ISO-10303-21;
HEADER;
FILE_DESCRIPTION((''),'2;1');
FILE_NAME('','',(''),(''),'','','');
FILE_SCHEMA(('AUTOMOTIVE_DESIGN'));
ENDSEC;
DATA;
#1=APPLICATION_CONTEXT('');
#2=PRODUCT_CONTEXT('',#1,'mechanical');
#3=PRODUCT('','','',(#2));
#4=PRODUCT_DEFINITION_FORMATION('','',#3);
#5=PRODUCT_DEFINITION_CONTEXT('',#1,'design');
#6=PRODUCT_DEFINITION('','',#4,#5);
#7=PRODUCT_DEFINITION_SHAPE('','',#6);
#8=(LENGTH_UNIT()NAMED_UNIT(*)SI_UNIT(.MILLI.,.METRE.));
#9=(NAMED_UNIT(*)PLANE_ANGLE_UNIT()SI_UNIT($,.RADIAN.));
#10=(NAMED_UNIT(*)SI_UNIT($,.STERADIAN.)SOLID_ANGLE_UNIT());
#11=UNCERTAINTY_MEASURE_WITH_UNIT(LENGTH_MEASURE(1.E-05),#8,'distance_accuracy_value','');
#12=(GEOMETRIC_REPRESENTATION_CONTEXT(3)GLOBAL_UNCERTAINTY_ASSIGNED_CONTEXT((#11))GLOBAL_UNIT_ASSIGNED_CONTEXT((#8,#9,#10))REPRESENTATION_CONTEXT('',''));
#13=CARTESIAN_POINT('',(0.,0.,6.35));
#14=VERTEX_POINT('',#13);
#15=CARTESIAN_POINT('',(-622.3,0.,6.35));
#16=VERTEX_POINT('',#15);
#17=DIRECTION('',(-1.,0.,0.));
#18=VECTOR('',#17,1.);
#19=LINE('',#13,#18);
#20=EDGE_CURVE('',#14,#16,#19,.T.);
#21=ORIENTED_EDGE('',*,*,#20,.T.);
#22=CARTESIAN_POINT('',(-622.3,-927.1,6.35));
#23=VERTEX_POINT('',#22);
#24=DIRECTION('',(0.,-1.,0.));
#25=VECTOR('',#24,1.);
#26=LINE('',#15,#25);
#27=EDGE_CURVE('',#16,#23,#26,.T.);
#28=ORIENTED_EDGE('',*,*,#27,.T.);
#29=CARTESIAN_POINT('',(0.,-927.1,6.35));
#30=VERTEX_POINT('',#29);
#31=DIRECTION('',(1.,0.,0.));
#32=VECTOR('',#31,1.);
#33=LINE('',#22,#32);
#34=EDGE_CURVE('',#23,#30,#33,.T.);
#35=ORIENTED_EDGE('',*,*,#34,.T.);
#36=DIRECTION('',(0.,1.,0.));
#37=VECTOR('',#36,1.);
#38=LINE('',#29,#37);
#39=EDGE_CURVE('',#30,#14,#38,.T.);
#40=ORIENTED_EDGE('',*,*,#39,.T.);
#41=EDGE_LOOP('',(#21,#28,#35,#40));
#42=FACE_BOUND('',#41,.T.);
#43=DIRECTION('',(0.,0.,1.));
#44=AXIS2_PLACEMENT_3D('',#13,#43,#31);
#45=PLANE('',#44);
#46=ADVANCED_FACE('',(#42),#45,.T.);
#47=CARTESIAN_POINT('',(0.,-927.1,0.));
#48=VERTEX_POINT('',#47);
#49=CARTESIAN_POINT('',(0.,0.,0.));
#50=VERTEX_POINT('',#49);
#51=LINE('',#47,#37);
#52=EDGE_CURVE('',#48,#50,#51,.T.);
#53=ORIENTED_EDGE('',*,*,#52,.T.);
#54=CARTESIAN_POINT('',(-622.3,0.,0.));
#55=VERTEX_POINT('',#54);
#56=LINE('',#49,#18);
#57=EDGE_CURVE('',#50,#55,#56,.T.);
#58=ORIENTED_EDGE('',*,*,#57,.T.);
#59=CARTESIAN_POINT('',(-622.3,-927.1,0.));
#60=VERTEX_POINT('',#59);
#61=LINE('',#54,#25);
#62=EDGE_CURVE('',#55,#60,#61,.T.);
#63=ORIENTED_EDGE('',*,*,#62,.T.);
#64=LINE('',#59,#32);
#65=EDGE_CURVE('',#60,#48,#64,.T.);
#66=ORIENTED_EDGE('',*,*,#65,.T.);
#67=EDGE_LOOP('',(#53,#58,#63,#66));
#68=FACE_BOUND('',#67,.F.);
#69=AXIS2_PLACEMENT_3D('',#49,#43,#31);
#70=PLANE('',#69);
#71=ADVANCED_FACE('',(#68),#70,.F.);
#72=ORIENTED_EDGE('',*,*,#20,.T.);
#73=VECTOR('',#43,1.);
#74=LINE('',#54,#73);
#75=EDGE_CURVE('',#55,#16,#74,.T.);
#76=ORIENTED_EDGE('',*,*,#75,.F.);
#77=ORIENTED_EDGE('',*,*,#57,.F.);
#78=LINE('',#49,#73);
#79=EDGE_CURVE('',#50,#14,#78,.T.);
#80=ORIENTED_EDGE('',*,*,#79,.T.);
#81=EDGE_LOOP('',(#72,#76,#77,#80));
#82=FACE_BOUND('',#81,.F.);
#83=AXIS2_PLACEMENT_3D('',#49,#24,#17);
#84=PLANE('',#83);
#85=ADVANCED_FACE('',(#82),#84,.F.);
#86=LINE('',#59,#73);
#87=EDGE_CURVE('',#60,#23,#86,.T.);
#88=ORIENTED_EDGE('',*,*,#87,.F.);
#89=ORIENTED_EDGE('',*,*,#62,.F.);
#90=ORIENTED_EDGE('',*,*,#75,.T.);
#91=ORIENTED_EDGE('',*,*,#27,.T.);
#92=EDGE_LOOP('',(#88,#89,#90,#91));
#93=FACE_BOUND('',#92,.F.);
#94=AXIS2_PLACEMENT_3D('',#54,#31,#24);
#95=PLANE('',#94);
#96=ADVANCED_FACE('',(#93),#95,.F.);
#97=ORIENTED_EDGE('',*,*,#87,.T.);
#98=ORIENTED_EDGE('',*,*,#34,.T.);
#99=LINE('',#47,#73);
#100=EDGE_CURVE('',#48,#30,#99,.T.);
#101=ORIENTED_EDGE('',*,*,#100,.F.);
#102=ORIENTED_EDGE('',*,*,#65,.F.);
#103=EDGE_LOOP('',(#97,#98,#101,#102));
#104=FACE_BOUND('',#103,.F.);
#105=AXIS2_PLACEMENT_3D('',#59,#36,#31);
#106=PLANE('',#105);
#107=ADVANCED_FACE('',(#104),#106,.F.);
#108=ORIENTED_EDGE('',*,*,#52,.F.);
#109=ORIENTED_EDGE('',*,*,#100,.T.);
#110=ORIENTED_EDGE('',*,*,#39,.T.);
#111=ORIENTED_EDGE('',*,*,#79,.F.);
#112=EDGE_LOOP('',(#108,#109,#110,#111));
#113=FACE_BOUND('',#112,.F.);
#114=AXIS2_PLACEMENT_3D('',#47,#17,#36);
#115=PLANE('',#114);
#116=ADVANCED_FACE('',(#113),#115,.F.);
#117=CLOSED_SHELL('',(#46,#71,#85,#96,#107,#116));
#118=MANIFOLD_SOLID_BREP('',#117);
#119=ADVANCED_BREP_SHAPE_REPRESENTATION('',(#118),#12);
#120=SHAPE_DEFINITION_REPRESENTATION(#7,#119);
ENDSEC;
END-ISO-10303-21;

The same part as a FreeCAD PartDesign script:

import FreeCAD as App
import Part
import Sketcher
from FreeCAD import Vector
Q = App.Units.Quantity


def add_polygon(sketch, points):
    """Adds a closed chain of lines whose ends are joined by coincident constraints."""
    first, n = sketch.GeometryCount, len(points)
    for a, b in zip(points, points[1:] + points[:1]):
        sketch.addGeometry(Part.LineSegment(App.Vector(*a, 0), App.Vector(*b, 0)), False)
    for i in range(n):
        sketch.addConstraint(Sketcher.Constraint("Coincident", first + i, 2, first + (i + 1) % n, 1))

doc = App.newDocument("Part")
body = doc.addObject("PartDesign::Body", "Body")

# Sketch on XY plane
sketch1 = doc.addObject("Sketcher::SketchObject", "Sketch")
body.addObject(sketch1)
sketch1.AttachmentSupport = (doc.XY_Plane, [""])
sketch1.MapMode = "FlatFace"
add_polygon(sketch1, [(0, -927.1), (0, 0), (-622.3, 0), (-622.3, -927.1)])  # lines 0-3
sketch1.addConstraint(Sketcher.Constraint("Vertical", 0))
sketch1.addConstraint(Sketcher.Constraint("Horizontal", 1))
sketch1.addConstraint(Sketcher.Constraint("Vertical", 2))
sketch1.addConstraint(Sketcher.Constraint("Horizontal", 3))
sketch1.addConstraint(Sketcher.Constraint("Coincident", 0, 2, -1, 1))
sketch1.addConstraint(Sketcher.Constraint("DistanceX", 1, 2, 1, 1, Q("24.5 in")))
sketch1.addConstraint(Sketcher.Constraint("DistanceY", 0, 1, 0, 2, Q("36.5 in")))
pad1 = doc.addObject("PartDesign::Pad", "Pad")
body.addObject(pad1)
pad1.Profile = sketch1
pad1.Length = Q("0.25 in")

doc.recompute()
